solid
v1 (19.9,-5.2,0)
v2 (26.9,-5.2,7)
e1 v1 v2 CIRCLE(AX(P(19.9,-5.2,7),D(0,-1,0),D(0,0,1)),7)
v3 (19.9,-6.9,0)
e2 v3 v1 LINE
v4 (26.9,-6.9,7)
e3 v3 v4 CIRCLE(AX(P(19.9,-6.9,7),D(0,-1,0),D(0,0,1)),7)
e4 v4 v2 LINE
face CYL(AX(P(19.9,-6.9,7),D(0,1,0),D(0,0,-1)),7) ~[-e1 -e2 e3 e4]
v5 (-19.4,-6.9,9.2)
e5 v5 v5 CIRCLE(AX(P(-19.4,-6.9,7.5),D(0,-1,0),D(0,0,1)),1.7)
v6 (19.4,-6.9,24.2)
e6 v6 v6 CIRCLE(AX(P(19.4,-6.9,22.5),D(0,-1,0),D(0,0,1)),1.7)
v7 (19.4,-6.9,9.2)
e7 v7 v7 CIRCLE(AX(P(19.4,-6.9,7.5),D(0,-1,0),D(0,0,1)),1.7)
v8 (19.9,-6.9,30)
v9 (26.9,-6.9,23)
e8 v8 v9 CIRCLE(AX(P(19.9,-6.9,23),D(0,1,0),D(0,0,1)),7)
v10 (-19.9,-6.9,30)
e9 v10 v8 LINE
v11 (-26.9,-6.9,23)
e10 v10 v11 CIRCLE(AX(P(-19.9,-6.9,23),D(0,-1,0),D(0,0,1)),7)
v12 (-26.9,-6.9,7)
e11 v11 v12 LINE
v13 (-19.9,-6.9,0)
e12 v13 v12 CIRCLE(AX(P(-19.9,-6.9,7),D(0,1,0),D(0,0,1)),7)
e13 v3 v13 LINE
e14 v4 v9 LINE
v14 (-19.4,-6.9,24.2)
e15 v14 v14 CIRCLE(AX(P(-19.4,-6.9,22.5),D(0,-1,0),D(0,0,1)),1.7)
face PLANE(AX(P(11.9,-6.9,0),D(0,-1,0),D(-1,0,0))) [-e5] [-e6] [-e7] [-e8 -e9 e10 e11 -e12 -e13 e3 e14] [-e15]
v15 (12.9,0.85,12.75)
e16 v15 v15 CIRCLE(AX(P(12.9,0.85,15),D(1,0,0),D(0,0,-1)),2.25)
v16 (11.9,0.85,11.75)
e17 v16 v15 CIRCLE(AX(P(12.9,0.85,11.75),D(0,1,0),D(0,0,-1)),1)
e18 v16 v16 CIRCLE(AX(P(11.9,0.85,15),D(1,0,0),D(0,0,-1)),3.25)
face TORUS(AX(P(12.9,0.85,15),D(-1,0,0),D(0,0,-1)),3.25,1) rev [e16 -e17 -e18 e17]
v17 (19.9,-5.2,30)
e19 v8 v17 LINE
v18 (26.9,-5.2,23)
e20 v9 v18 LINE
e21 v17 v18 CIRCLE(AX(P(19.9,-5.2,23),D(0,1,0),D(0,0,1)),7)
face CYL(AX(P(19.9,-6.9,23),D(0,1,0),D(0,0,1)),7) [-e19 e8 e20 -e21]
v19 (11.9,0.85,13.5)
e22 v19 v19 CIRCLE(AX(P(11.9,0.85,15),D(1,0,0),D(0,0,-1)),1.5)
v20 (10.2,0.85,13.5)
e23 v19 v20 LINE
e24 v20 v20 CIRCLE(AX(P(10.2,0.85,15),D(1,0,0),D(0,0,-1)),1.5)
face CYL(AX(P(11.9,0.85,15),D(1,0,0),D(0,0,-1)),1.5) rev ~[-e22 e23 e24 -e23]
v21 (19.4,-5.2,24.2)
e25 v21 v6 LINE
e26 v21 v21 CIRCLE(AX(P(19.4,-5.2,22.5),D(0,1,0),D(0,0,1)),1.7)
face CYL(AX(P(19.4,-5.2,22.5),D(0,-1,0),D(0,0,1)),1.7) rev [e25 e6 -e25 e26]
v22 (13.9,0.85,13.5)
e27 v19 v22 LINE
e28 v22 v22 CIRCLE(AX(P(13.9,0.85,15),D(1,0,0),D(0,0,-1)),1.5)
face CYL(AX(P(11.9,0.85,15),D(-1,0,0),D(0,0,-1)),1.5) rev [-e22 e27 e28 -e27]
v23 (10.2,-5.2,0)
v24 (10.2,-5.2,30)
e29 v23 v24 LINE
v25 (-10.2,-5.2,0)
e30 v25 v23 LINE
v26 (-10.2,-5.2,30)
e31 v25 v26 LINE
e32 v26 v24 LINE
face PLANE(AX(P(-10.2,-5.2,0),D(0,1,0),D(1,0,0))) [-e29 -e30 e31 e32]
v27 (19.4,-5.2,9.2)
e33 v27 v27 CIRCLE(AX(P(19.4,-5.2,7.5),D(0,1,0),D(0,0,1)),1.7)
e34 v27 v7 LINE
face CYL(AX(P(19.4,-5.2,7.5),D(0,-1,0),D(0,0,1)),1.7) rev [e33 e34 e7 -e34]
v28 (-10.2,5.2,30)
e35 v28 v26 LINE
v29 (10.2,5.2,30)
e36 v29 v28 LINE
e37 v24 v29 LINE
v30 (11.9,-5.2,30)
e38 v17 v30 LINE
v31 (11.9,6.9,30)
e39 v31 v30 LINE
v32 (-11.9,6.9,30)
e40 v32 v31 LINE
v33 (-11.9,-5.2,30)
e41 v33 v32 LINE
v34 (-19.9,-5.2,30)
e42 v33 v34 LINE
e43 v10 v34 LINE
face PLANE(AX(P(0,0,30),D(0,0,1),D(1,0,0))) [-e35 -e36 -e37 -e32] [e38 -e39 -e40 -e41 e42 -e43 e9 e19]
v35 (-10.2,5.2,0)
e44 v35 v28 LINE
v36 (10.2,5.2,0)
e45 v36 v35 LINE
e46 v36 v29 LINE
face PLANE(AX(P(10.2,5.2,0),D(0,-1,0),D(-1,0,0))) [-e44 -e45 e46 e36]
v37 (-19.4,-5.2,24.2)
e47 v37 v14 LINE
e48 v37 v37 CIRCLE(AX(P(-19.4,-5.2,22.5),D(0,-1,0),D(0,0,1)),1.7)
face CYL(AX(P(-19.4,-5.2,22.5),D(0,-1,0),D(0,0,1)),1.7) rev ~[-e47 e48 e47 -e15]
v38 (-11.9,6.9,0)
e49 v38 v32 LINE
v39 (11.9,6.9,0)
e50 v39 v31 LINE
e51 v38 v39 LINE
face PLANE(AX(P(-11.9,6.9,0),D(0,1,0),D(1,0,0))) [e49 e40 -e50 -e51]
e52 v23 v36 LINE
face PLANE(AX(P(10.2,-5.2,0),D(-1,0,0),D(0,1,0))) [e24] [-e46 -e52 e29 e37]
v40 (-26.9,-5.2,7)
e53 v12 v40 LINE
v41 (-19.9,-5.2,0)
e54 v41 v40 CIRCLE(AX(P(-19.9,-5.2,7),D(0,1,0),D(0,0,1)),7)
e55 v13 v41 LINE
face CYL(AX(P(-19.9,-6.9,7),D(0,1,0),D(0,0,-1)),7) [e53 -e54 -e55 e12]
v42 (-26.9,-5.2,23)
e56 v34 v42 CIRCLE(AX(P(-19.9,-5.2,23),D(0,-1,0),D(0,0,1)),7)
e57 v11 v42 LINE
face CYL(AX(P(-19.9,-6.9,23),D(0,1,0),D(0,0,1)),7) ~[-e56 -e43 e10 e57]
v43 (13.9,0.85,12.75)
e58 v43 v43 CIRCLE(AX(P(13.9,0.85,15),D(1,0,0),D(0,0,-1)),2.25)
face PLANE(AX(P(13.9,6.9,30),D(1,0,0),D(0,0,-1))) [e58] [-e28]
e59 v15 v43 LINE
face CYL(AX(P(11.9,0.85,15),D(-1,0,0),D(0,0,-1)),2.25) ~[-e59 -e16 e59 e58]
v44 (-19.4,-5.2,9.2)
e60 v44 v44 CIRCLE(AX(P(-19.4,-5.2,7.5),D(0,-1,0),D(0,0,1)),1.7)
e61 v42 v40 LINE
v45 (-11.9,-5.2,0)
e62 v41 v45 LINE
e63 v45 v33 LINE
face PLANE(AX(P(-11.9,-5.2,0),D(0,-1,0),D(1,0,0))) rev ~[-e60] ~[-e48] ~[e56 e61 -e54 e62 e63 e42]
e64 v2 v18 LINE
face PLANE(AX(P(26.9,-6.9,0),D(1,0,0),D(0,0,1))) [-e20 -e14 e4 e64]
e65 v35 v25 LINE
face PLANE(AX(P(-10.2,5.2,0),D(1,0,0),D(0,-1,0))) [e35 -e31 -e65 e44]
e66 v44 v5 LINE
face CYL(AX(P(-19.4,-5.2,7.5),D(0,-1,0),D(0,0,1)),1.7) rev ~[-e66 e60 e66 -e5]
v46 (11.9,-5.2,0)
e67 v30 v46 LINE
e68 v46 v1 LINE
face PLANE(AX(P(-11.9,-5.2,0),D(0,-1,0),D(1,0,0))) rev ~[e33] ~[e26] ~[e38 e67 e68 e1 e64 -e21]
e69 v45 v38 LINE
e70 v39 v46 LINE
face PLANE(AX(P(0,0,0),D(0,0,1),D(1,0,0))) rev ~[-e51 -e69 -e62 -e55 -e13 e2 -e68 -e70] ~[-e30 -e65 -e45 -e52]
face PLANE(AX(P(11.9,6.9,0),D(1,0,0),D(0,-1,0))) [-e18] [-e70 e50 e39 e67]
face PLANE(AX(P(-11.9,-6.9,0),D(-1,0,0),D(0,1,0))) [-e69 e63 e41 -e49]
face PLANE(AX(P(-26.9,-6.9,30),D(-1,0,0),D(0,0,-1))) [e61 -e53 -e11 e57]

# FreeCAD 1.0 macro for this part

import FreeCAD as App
import Part
import Sketcher


def edges_at(feature, points):
    """Names of the edges that pass closest to the given points."""
    edges = feature.Shape.Edges
    near = lambda p: min(range(len(edges)), key=lambda i: edges[i].distToShape(Part.Vertex(*p))[0])
    return sorted({f"Edge{near(p) + 1}" for p in points})

doc = App.newDocument("Part")
body = doc.addObject("PartDesign::Body", "Body")

sketch1 = body.newObject("Sketcher::SketchObject", "Sketch")
sketch1.AttachmentSupport = (doc.getObject("XY_Plane"), [""])
sketch1.MapMode = "FlatFace"
sketch1.addGeometry(Part.LineSegment(App.Vector(12, 7, 0), App.Vector(-12, 7, 0)), False)
sketch1.addGeometry(Part.LineSegment(App.Vector(-12, 7, 0), App.Vector(-12, -7, 0)), False)
sketch1.addGeometry(Part.LineSegment(App.Vector(-12, -7, 0), App.Vector(12, -7, 0)), False)
sketch1.addGeometry(Part.LineSegment(App.Vector(12, -7, 0), App.Vector(12, 7, 0)), False)
sketch1.addGeometry(Part.LineSegment(App.Vector(10, -5, 0), App.Vector(-10, -5, 0)), False)
sketch1.addGeometry(Part.LineSegment(App.Vector(-10, -5, 0), App.Vector(-10, 5, 0)), False)
sketch1.addGeometry(Part.LineSegment(App.Vector(-10, 5, 0), App.Vector(10, 5, 0)), False)
sketch1.addGeometry(Part.LineSegment(App.Vector(10, 5, 0), App.Vector(10, -5, 0)), False)
sketch1.addConstraint(Sketcher.Constraint("Coincident", 0, 2, 1, 1))
sketch1.addConstraint(Sketcher.Constraint("Coincident", 1, 2, 2, 1))
sketch1.addConstraint(Sketcher.Constraint("Coincident", 2, 2, 3, 1))
sketch1.addConstraint(Sketcher.Constraint("Coincident", 3, 2, 0, 1))
sketch1.addConstraint(Sketcher.Constraint("Coincident", 4, 2, 5, 1))
sketch1.addConstraint(Sketcher.Constraint("Coincident", 5, 2, 6, 1))
sketch1.addConstraint(Sketcher.Constraint("Coincident", 6, 2, 7, 1))
sketch1.addConstraint(Sketcher.Constraint("Coincident", 7, 2, 4, 1))
sketch1.addConstraint(Sketcher.Constraint("Horizontal", 0))
sketch1.addConstraint(Sketcher.Constraint("Vertical", 1))
sketch1.addConstraint(Sketcher.Constraint("Horizontal", 2))
sketch1.addConstraint(Sketcher.Constraint("Vertical", 3))
sketch1.addConstraint(Sketcher.Constraint("Horizontal", 4))
sketch1.addConstraint(Sketcher.Constraint("Vertical", 5))
sketch1.addConstraint(Sketcher.Constraint("Horizontal", 6))
sketch1.addConstraint(Sketcher.Constraint("Vertical", 7))
sketch1.addConstraint(Sketcher.Constraint("Symmetric", 0, 2, 2, 2, -1, 1))
sketch1.addConstraint(Sketcher.Constraint("Symmetric", 4, 2, 6, 2, -1, 1))
sketch1.addConstraint(Sketcher.Constraint("DistanceX", 4, 2, 4, 1, 20.4))
sketch1.addConstraint(Sketcher.Constraint("DistanceY", 5, 1, 5, 2, 10.4))
sketch1.addConstraint(Sketcher.Constraint("DistanceX", 1, 2, 4, 2, 1.7))
sketch1.addConstraint(Sketcher.Constraint("DistanceY", 1, 2, 4, 2, 1.7))
pad1 = body.newObject("PartDesign::Pad", "Pad")
pad1.Profile = sketch1
pad1.Length = 30

sketch2 = body.newObject("Sketcher::SketchObject", "Sketch001")
sketch2.AttachmentSupport = (doc.getObject("XZ_Plane"), [""])
sketch2.MapMode = "FlatFace"
sketch2.AttachmentOffset = App.Placement(App.Vector(0, 0, 6.9), App.Rotation())
sketch2.addGeometry(Part.LineSegment(App.Vector(-27, 30, 0), App.Vector(-27, 0, 0)), False)
sketch2.addGeometry(Part.LineSegment(App.Vector(-27, 0, 0), App.Vector(27, 0, 0)), False)
sketch2.addGeometry(Part.LineSegment(App.Vector(27, 0, 0), App.Vector(27, 30, 0)), False)
sketch2.addGeometry(Part.LineSegment(App.Vector(27, 30, 0), App.Vector(-27, 30, 0)), False)
sketch2.addConstraint(Sketcher.Constraint("Coincident", 0, 2, 1, 1))
sketch2.addConstraint(Sketcher.Constraint("Coincident", 1, 2, 2, 1))
sketch2.addConstraint(Sketcher.Constraint("Coincident", 2, 2, 3, 1))
sketch2.addConstraint(Sketcher.Constraint("Coincident", 3, 2, 0, 1))
sketch2.addConstraint(Sketcher.Constraint("Vertical", 0))
sketch2.addConstraint(Sketcher.Constraint("Horizontal", 1))
sketch2.addConstraint(Sketcher.Constraint("Vertical", 2))
sketch2.addConstraint(Sketcher.Constraint("Horizontal", 3))
sketch2.addConstraint(Sketcher.Constraint("Symmetric", 0, 2, 1, 2, -1, 1))
sketch2.addConstraint(Sketcher.Constraint("DistanceY", 0, 2, 0, 1, 30.0))
sketch2.addConstraint(Sketcher.Constraint("DistanceX", 1, 1, 1, 2, 53.8))
pad2 = body.newObject("PartDesign::Pad", "Pad001")
pad2.Profile = sketch2
pad2.Length = 1.7
pad2.Reversed = True

sketch3 = body.newObject("Sketcher::SketchObject", "Sketch002")
sketch3.AttachmentSupport = (doc.getObject("XZ_Plane"), [""])
sketch3.MapMode = "FlatFace"
sketch3.AttachmentOffset = App.Placement(App.Vector(0, 0, 5.2), App.Rotation())
sketch3.addGeometry(Part.Circle(App.Vector(-19.4, 7.5, 0), App.Vector(0, 0, 1), 1.7), False)
sketch3.addGeometry(Part.Circle(App.Vector(-19.4, 22.5, 0), App.Vector(0, 0, 1), 1.7), False)
sketch3.addConstraint(Sketcher.Constraint("Equal", 0, 1))
sketch3.addConstraint(Sketcher.Constraint("Vertical", 0, 3, 1, 3))
sketch3.addConstraint(Sketcher.Constraint("Diameter", 0, 3.4))
sketch3.addConstraint(Sketcher.Constraint("DistanceY", 0, 3, 1, 3, 15.0))
sketch3.addConstraint(Sketcher.Constraint("DistanceX", 0, 3, -1, 1, 19.4))
sketch3.addConstraint(Sketcher.Constraint("DistanceY", -1, 1, 0, 3, 7.5))
doc.recompute()
hole = body.newObject("PartDesign::Hole", "Hole")
hole.Profile = sketch3
hole.ThreadType = "None"
hole.Diameter = 3.4
hole.DepthType = "Dimension"
hole.Depth = 5
hole.DrillPoint = "Angled"
hole.DrillPointAngle = 118
hole.Reversed = True
doc.recompute()

mirrored = body.newObject("PartDesign::Mirrored", "Mirrored")
mirrored.Originals = [hole]
mirrored.MirrorPlane = (doc.getObject("YZ_Plane"), [""])
body.Tip = mirrored
doc.recompute()

fillet = body.newObject("PartDesign::Fillet", "Fillet")
fillet.Base = (mirrored, edges_at(mirrored, [
    (26.9, -6.05, 30),
    (26.9, -6.05, 0),
    (-26.9, -6.05, 0),
    (-26.9, -6.05, 30),
]))
fillet.Radius = 7

sketch4 = body.newObject("Sketcher::SketchObject", "Sketch003")
sketch4.AttachmentSupport = (doc.getObject("YZ_Plane"), [""])
sketch4.MapMode = "FlatFace"
sketch4.AttachmentOffset = App.Placement(App.Vector(0, 0, 11.9), App.Rotation())
sketch4.addGeometry(Part.Circle(App.Vector(0.8, 15, 0), App.Vector(0, 0, 1), 2.2), False)
sketch4.addGeometry(Part.Circle(App.Vector(0.8, 15, 0), App.Vector(0, 0, 1), 1.5), False)
sketch4.addConstraint(Sketcher.Constraint("Coincident", 1, 3, 0, 3))
sketch4.addConstraint(Sketcher.Constraint("Diameter", 1, 3.0))
sketch4.addConstraint(Sketcher.Constraint("Diameter", 0, 4.5))
sketch4.addConstraint(Sketcher.Constraint("DistanceY", -1, 1, 0, 3, 15.0))
sketch4.addConstraint(Sketcher.Constraint("DistanceX", -1, 1, 0, 3, 0.85))
pad3 = body.newObject("PartDesign::Pad", "Pad002")
pad3.Profile = sketch4
pad3.Length = 2
doc.recompute()

fillet2 = body.newObject("PartDesign::Fillet", "Fillet001")
fillet2.Base = (pad3, edges_at(pad3, [(11.9, 0.85, 17.25)]))
fillet2.Radius = 1

sketch5 = body.newObject("Sketcher::SketchObject", "Sketch004")
sketch5.AttachmentSupport = (doc.getObject("YZ_Plane"), [""])
sketch5.MapMode = "FlatFace"
sketch5.AttachmentOffset = App.Placement(App.Vector(0, 0, 11.9), App.Rotation())
sketch5.addGeometry(Part.Circle(App.Vector(0.8, 15, 0), App.Vector(0, 0, 1), 1.5), False)
sketch5.addConstraint(Sketcher.Constraint("Diameter", 0, 3.0))
sketch5.addConstraint(Sketcher.Constraint("DistanceY", -1, 1, 0, 3, 15.0))
sketch5.addConstraint(Sketcher.Constraint("DistanceX", -1, 1, 0, 3, 0.85))
pocket1 = body.newObject("PartDesign::Pocket", "Pocket")
pocket1.Profile = sketch5
pocket1.Length = 2

doc.recompute()
